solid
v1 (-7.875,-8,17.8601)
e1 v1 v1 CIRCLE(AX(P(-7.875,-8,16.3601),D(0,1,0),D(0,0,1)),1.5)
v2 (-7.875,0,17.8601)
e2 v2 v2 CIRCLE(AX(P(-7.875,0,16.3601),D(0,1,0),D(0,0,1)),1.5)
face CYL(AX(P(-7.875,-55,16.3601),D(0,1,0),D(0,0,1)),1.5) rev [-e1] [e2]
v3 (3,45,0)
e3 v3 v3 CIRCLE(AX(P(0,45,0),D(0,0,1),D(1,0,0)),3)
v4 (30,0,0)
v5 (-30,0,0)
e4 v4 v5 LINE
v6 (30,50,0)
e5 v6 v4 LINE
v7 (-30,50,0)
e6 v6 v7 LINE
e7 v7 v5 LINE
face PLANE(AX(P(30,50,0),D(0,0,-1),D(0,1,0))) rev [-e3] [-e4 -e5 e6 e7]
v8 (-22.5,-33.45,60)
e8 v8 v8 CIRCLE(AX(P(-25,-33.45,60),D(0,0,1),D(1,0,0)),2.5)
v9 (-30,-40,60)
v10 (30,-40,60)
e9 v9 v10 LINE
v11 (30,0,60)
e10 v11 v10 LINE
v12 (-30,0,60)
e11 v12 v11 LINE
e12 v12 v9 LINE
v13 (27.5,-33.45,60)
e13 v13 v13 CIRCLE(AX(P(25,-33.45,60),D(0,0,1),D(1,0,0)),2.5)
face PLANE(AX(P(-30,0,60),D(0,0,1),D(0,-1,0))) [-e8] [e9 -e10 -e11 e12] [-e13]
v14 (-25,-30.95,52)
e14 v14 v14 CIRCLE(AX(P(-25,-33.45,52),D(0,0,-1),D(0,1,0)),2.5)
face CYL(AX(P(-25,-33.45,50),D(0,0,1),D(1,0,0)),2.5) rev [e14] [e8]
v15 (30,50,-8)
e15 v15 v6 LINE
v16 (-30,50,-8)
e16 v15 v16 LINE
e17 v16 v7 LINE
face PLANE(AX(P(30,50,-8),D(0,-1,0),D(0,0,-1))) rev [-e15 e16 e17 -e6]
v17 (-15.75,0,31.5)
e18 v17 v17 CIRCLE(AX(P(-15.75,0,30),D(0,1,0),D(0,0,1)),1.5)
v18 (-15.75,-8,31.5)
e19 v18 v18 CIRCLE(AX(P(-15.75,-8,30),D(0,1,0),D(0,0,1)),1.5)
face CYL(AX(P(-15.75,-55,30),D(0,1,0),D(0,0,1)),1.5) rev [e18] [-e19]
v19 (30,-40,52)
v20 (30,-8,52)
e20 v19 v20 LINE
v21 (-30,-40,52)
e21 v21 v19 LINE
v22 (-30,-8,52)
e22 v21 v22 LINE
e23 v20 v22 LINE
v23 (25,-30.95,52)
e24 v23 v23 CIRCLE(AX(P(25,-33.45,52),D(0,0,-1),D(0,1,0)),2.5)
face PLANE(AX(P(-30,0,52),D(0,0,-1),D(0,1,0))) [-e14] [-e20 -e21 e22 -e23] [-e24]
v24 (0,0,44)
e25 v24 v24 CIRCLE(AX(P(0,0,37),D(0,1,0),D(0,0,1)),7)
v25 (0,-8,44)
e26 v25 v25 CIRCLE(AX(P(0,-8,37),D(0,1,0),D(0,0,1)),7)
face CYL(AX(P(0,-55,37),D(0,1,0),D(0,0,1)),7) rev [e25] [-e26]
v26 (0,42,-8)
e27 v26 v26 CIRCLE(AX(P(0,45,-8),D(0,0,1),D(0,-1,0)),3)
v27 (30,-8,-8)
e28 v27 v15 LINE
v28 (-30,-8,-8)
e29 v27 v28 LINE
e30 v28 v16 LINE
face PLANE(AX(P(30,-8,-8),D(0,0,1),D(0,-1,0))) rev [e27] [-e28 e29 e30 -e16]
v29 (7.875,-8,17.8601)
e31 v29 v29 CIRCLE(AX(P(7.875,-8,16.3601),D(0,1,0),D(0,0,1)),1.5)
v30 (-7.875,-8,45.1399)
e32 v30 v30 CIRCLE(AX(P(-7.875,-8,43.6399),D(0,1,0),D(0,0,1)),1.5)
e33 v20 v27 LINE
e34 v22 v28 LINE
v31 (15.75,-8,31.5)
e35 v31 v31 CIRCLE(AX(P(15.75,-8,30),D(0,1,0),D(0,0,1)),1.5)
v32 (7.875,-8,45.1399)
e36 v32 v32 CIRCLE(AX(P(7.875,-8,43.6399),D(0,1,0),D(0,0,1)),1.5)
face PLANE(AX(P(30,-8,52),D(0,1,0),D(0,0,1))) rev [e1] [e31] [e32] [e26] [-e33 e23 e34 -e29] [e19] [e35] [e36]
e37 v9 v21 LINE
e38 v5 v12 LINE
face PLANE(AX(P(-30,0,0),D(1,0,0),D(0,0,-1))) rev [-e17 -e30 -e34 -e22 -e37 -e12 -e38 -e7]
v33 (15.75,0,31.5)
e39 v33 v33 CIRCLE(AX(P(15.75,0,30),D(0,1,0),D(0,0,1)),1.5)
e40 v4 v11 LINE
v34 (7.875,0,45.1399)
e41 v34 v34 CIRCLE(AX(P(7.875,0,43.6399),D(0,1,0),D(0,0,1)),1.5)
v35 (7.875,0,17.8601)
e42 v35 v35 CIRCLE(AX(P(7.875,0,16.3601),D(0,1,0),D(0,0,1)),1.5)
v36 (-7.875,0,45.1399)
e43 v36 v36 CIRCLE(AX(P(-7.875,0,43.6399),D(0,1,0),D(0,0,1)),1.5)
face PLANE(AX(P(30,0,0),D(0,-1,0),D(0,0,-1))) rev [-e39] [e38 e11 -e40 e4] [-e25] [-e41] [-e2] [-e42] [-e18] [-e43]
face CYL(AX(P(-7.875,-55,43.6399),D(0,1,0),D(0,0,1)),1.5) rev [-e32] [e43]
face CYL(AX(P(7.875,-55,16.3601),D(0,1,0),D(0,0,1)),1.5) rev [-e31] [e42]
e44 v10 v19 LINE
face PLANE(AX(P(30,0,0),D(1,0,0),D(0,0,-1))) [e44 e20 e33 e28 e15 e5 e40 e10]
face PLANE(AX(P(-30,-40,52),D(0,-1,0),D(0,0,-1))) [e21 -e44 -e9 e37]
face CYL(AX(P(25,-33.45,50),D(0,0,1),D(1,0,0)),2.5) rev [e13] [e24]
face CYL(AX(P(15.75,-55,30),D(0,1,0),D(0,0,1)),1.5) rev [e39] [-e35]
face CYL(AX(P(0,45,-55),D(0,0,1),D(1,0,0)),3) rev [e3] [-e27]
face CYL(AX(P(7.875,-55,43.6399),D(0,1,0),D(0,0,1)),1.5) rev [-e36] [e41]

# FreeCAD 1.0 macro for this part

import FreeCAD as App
import Part
import Sketcher
Q = App.Units.Quantity


def add_polygon(sketch, points):
    """Adds a closed chain of lines whose ends are joined by coincident constraints."""
    first, n = sketch.GeometryCount, len(points)
    for a, b in zip(points, points[1:] + points[:1]):
        sketch.addGeometry(Part.LineSegment(App.Vector(*a, 0), App.Vector(*b, 0)), False)
    for i in range(n):
        sketch.addConstraint(Sketcher.Constraint("Coincident", first + i, 2, first + (i + 1) % n, 1))

doc = App.newDocument("Part")
body = doc.addObject("PartDesign::Body", "Body")

# Sketch on YZ plane
sketch1 = body.newObject("Sketcher::SketchObject", "Sketch")
sketch1.AttachmentSupport = (doc.getObject("YZ_Plane"), [""])
sketch1.MapMode = "FlatFace"
add_polygon(sketch1, [(50, 0), (0, 0), (0, 52), (-8, 52), (-8, -8), (50, -8)])  # lines 0-5
sketch1.addConstraint([
    Sketcher.Constraint("Horizontal", 0),
    Sketcher.Constraint("Vertical", 1),
    Sketcher.Constraint("Horizontal", 2),
    Sketcher.Constraint("Vertical", 3),
    Sketcher.Constraint("Horizontal", 4),
    Sketcher.Constraint("Vertical", 5),
    Sketcher.Constraint("Coincident", 0, 2, -1, 1),
    Sketcher.Constraint("Equal", 2, 5),
    Sketcher.Constraint("DistanceX", 0, 2, 0, 1, Q("50 mm")),
    Sketcher.Constraint("DistanceX", 2, 2, 2, 1, Q("8 mm")),
    Sketcher.Constraint("DistanceY", 1, 1, 1, 2, Q("52 mm")),
])
pad1 = body.newObject("PartDesign::Pad", "Pad")
pad1.Profile = sketch1
pad1.Length = 60
pad1.Midplane = True

# Sketch on XZ plane
sketch2 = body.newObject("Sketcher::SketchObject", "Sketch001")
sketch2.AttachmentSupport = (doc.getObject("XZ_Plane"), [""])
sketch2.MapMode = "FlatFace"
sketch2.addGeometry([
    Part.Circle(App.Vector(0, 37, 0), App.Vector(0, 0, 1), 7),  # 0
    Part.Circle(App.Vector(15.8, 30, 0), App.Vector(0, 0, 1), 1.5),  # 1
    Part.Circle(App.Vector(7.9, 43.6, 0), App.Vector(0, 0, 1), 1.5),  # 2
    Part.Circle(App.Vector(-7.9, 43.6, 0), App.Vector(0, 0, 1), 1.5),  # 3
    Part.Circle(App.Vector(-15.8, 30, 0), App.Vector(0, 0, 1), 1.5),  # 4
    Part.Circle(App.Vector(-7.9, 16.4, 0), App.Vector(0, 0, 1), 1.5),  # 5
    Part.Circle(App.Vector(7.9, 16.4, 0), App.Vector(0, 0, 1), 1.5),  # 6
], False)
sketch2.addConstraint([
    Sketcher.Constraint("Equal", 1, 2),
    Sketcher.Constraint("Equal", 2, 3),
    Sketcher.Constraint("Equal", 3, 4),
    Sketcher.Constraint("Equal", 4, 5),
    Sketcher.Constraint("Equal", 5, 6),
    Sketcher.Constraint("Symmetric", 2, 3, 3, 3, -2),
    Sketcher.Constraint("Symmetric", 1, 3, 4, 3, -2),
    Sketcher.Constraint("Symmetric", 5, 3, 6, 3, -2),
    Sketcher.Constraint("PointOnObject", 0, 3, -2),
    Sketcher.Constraint("Vertical", 3, 3, 5, 3),
    Sketcher.Constraint("Diameter", 0, Q("14 mm")),
    Sketcher.Constraint("Diameter", 1, Q("3 mm")),
    Sketcher.Constraint("DistanceY", -1, 1, 0, 3, Q("37 mm")),
    Sketcher.Constraint("DistanceY", -1, 1, 1, 3, Q("30 mm")),
    Sketcher.Constraint("DistanceX", 4, 3, 1, 3, Q("31.5 mm")),
    Sketcher.Constraint("DistanceX", 3, 3, 2, 3, Q("15.75 mm")),
    Sketcher.Constraint("DistanceY", -1, 1, 2, 3, Q("43.6399 mm")),
    Sketcher.Constraint("DistanceY", -1, 1, 5, 3, Q("16.3601 mm")),
])
pocket1 = body.newObject("PartDesign::Pocket", "Pocket")
pocket1.Profile = sketch2
pocket1.Length = 55
pocket1.Reversed = True

# Sketch on XY plane
sketch3 = body.newObject("Sketcher::SketchObject", "Sketch002")
sketch3.AttachmentSupport = (doc.getObject("XY_Plane"), [""])
sketch3.MapMode = "FlatFace"
sketch3.addGeometry(Part.Circle(App.Vector(0, 45, 0), App.Vector(0, 0, 1), 3), False)
sketch3.addConstraint([
    Sketcher.Constraint("PointOnObject", 0, 3, -2),
    Sketcher.Constraint("Diameter", 0, Q("6 mm")),
    Sketcher.Constraint("DistanceY", -1, 1, 0, 3, Q("45 mm")),
])
pocket2 = body.newObject("PartDesign::Pocket", "Pocket001")
pocket2.Profile = sketch3
pocket2.Length = 55

# Sketch on YZ plane
sketch4 = body.newObject("Sketcher::SketchObject", "Sketch003")
sketch4.AttachmentSupport = (doc.getObject("YZ_Plane"), [""])
sketch4.MapMode = "FlatFace"
sketch4.AttachmentOffset = App.Placement(App.Vector(0, 0, 30), App.Rotation())
add_polygon(sketch4, [(0, 60), (-40, 60), (-40, 52), (0, 52)])  # lines 0-3
sketch4.addConstraint([
    Sketcher.Constraint("Horizontal", 0),
    Sketcher.Constraint("Vertical", 1),
    Sketcher.Constraint("Horizontal", 2),
    Sketcher.Constraint("Vertical", 3),
    Sketcher.Constraint("PointOnObject", 2, 2, -2),
    Sketcher.Constraint("DistanceX", 0, 2, 0, 1, Q("40 mm")),
    Sketcher.Constraint("DistanceY", 1, 2, 1, 1, Q("8 mm")),
    Sketcher.Constraint("DistanceY", -1, 1, 0, 2, Q("60 mm")),
])
pad2 = body.newObject("PartDesign::Pad", "Pad001")
pad2.Profile = sketch4
pad2.Length = 60
pad2.Reversed = True

# Sketch on XY plane
sketch5 = body.newObject("Sketcher::SketchObject", "Sketch004")
sketch5.AttachmentSupport = (doc.getObject("XY_Plane"), [""])
sketch5.MapMode = "FlatFace"
sketch5.AttachmentOffset = App.Placement(App.Vector(0, 0, 60), App.Rotation())
sketch5.addGeometry([
    Part.Circle(App.Vector(25, -33.5, 0), App.Vector(0, 0, 1), 2.5),
    Part.Circle(App.Vector(-25, -33.5, 0), App.Vector(0, 0, 1), 2.5),
], False)
sketch5.addConstraint([
    Sketcher.Constraint("Equal", 0, 1),
    Sketcher.Constraint("Symmetric", 0, 3, 1, 3, -2),
    Sketcher.Constraint("Diameter", 0, Q("5 mm")),
    Sketcher.Constraint("DistanceX", -1, 1, 0, 3, Q("25 mm")),
    Sketcher.Constraint("DistanceY", 0, 3, -1, 1, Q("33.45 mm")),
])
pocket3 = body.newObject("PartDesign::Pocket", "Pocket002")
pocket3.Profile = sketch5
pocket3.Length = 10

doc.recompute()
